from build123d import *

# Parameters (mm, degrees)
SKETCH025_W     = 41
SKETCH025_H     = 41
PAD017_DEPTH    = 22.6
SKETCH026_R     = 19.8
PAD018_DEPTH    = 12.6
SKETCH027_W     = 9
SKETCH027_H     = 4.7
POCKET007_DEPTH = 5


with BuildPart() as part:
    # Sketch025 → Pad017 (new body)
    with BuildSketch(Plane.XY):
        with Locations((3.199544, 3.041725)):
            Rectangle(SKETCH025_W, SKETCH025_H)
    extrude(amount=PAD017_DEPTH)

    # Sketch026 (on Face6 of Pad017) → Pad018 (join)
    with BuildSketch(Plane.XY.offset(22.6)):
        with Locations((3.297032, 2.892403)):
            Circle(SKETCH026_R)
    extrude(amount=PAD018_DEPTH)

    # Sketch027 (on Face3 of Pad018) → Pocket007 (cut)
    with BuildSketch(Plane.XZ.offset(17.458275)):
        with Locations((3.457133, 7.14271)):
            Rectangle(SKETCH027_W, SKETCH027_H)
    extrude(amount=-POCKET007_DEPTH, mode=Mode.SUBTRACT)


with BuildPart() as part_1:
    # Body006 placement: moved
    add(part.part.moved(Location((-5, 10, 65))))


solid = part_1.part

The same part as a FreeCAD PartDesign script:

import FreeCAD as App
import Part
import Sketcher
from FreeCAD import Vector
Q = App.Units.Quantity

doc = App.newDocument("Part")
body = doc.addObject("PartDesign::Body", "Body")

# Sketch on XY plane
sketch1 = body.newObject("Sketcher::SketchObject", "Sketch")
sketch1.AttachmentSupport = (doc.getObject("XY_Plane"), [""])
sketch1.MapMode = "FlatFace"
sketch1.addGeometry([
    Part.LineSegment(Vector(-17.300456, 23.541725, 0), Vector(-17.300456, -17.458275, 0)),
    Part.LineSegment(Vector(-17.300456, -17.458275, 0), Vector(23.699544, -17.458275, 0)),
    Part.LineSegment(Vector(23.699544, -17.458275, 0), Vector(23.699544, 23.541725, 0)),
    Part.LineSegment(Vector(23.699544, 23.541725, 0), Vector(-17.300456, 23.541725, 0)),
], False)
sketch1.addConstraint([
    Sketcher.Constraint("Coincident", 0, 2, 1, 1),
    Sketcher.Constraint("Coincident", 1, 2, 2, 1),
    Sketcher.Constraint("Coincident", 2, 2, 3, 1),
    Sketcher.Constraint("Coincident", 3, 2, 0, 1),
    Sketcher.Constraint("Vertical", 0),
    Sketcher.Constraint("Horizontal", 1),
    Sketcher.Constraint("Vertical", 2),
    Sketcher.Constraint("Horizontal", 3),
    Sketcher.Constraint("Equal", 3, 0),
    Sketcher.Constraint("DistanceX", 1, 1, 1, 2, Q("41 mm")),
    Sketcher.Constraint("DistanceX", 0, 2, -1, 1, Q("17.300456 mm")),
    Sketcher.Constraint("DistanceY", 0, 2, -1, 1, Q("17.458275 mm")),
])
pad1 = body.newObject("PartDesign::Pad", "Pad")
pad1.Profile = sketch1
pad1.Length = 22.6

# Sketch on XY plane
sketch2 = body.newObject("Sketcher::SketchObject", "Sketch001")
sketch2.AttachmentSupport = (doc.getObject("XY_Plane"), [""])
sketch2.MapMode = "FlatFace"
sketch2.AttachmentOffset = App.Placement(Vector(0, 0, 22.6), App.Rotation())
sketch2.addGeometry(Part.Circle(Vector(3.297032, 2.892403, 0), Vector(0, 0, 1), 19.8), False)
sketch2.addConstraint([
    Sketcher.Constraint("Diameter", 0, Q("39.6 mm")),
    Sketcher.Constraint("DistanceX", -1, 1, 0, 3, Q("3.297032 mm")),
    Sketcher.Constraint("DistanceY", -1, 1, 0, 3, Q("2.892403 mm")),
])
pad2 = body.newObject("PartDesign::Pad", "Pad001")
pad2.Profile = sketch2
pad2.Length = 12.6

# Sketch on XZ plane
sketch3 = body.newObject("Sketcher::SketchObject", "Sketch002")
sketch3.AttachmentSupport = (doc.getObject("XZ_Plane"), [""])
sketch3.MapMode = "FlatFace"
sketch3.AttachmentOffset = App.Placement(Vector(0, 0, 17.458275), App.Rotation())
sketch3.addGeometry([
    Part.LineSegment(Vector(-1.042867, 9.49271, 0), Vector(-1.042867, 4.79271, 0)),
    Part.LineSegment(Vector(-1.042867, 4.79271, 0), Vector(7.957133, 4.79271, 0)),
    Part.LineSegment(Vector(7.957133, 4.79271, 0), Vector(7.957133, 9.49271, 0)),
    Part.LineSegment(Vector(7.957133, 9.49271, 0), Vector(-1.042867, 9.49271, 0)),
], False)
sketch3.addConstraint([
    Sketcher.Constraint("Coincident", 0, 2, 1, 1),
    Sketcher.Constraint("Coincident", 1, 2, 2, 1),
    Sketcher.Constraint("Coincident", 2, 2, 3, 1),
    Sketcher.Constraint("Coincident", 3, 2, 0, 1),
    Sketcher.Constraint("Vertical", 0),
    Sketcher.Constraint("Horizontal", 1),
    Sketcher.Constraint("Vertical", 2),
    Sketcher.Constraint("Horizontal", 3),
    Sketcher.Constraint("DistanceX", 1, 1, 1, 2, Q("9 mm")),
    Sketcher.Constraint("DistanceY", 0, 2, 0, 1, Q("4.7 mm")),
    Sketcher.Constraint("DistanceY", -1, 1, 0, 2, Q("4.79271 mm")),
    Sketcher.Constraint("DistanceX", 0, 2, -1, 1, Q("1.042867 mm")),
])
pocket1 = body.newObject("PartDesign::Pocket", "Pocket")
pocket1.Profile = sketch3
pocket1.Length = 5
body2 = doc.addObject("PartDesign::Body", "Body001")
doc.recompute()

body.Placement = App.Placement(Vector(-5, 10, 65), App.Rotation(Vector(0, 0, 1), 0))
boolean = body2.newObject("PartDesign::Boolean", "Boolean")
boolean.Type = "Fuse"
boolean.addObjects([body])

doc.recompute()
